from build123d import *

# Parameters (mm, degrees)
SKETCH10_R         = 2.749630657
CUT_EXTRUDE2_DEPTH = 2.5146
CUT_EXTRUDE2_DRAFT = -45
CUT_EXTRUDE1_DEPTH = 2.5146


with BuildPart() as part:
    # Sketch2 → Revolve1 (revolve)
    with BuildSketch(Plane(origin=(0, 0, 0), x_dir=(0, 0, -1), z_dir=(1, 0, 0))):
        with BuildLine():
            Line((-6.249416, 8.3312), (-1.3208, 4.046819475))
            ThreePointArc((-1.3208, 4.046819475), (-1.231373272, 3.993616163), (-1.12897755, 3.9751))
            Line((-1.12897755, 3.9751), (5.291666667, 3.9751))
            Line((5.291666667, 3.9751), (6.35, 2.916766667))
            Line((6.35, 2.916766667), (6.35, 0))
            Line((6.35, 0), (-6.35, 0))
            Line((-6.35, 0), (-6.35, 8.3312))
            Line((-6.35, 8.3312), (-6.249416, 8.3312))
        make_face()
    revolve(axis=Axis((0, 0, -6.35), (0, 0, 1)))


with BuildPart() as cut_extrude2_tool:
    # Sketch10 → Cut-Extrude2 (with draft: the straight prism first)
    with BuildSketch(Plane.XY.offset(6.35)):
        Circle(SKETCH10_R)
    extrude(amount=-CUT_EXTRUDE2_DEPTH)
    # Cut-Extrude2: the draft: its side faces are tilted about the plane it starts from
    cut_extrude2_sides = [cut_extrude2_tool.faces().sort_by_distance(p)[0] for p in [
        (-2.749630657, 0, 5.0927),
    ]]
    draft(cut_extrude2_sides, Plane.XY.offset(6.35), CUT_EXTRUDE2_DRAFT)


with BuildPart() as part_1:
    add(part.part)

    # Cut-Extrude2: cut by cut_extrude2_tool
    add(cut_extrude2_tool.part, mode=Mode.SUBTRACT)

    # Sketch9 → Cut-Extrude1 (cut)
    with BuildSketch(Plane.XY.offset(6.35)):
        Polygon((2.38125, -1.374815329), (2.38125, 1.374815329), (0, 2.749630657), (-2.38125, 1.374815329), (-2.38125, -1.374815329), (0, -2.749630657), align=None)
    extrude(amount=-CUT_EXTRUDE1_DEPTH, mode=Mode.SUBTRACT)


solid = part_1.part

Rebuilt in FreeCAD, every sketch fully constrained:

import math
import FreeCAD as App
import Part
import Sketcher

V = App.Vector
Q = App.Units.Quantity


def faces_at(feature, points):
    """Names of the faces that lie closest to the given points."""
    faces = feature.Shape.Faces
    near = lambda p: min(range(len(faces)), key=lambda i: faces[i].distToShape(Part.Vertex(*p))[0])
    return sorted({f"Face{near(p) + 1}" for p in points})

doc = App.newDocument("Part")
body = doc.addObject("PartDesign::Body", "Body")

# Sketch on YZ plane
sketch1 = body.newObject("Sketcher::SketchObject", "Sketch")
sketch1.AttachmentSupport = (doc.getObject("YZ_Plane"), [""])
sketch1.MapMode = "FlatFace"
sketch1.addGeometry([
    Part.LineSegment(V(4.05, 1.32, 0), V(8.33, 6.25, 0)),  # 0
    Part.LineSegment(V(8.33, 6.25, 0), V(8.33, 6.35, 0)),  # 1
    Part.LineSegment(V(8.33, 6.35, 0), V(0, 6.35, 0)),  # 2
    Part.LineSegment(V(0, 6.35, 0), V(0, -6.35, 0)),  # 3
    Part.LineSegment(V(0, -6.35, 0), V(2.92, -6.35, 0)),  # 4
    Part.LineSegment(V(2.92, -6.35, 0), V(3.98, -5.29, 0)),  # 5
    Part.LineSegment(V(3.98, -5.29, 0), V(3.98, 1.13, 0)),  # 6
    Part.ArcOfCircle(Part.Circle(V(4.27, 1.13, 0), V(0, 0, 1), 0.29), math.radians(139), math.radians(180)),  # 7
], False)
sketch1.addConstraint([
    Sketcher.Constraint("Coincident", 0, 2, 1, 1),
    Sketcher.Constraint("Coincident", 1, 2, 2, 1),
    Sketcher.Constraint("Coincident", 2, 2, 3, 1),
    Sketcher.Constraint("Coincident", 3, 2, 4, 1),
    Sketcher.Constraint("Coincident", 4, 2, 5, 1),
    Sketcher.Constraint("Coincident", 5, 2, 6, 1),
    Sketcher.Constraint("Tangent", 6, 2, 7, 2),
    Sketcher.Constraint("Tangent", 7, 1, 0, 1),
    Sketcher.Constraint("Vertical", 1),
    Sketcher.Constraint("Horizontal", 2),
    Sketcher.Constraint("Vertical", 3),
    Sketcher.Constraint("Horizontal", 4),
    Sketcher.Constraint("Vertical", 6),
    Sketcher.Constraint("Symmetric", 2, 2, 3, 2, -1, 1),
    Sketcher.Constraint("DistanceY", 3, 2, 3, 1, Q("0.5 in")),
    Sketcher.Constraint("Angle", 0, Q("49 deg")),
    Sketcher.Constraint("Angle", 5, Q("45 deg")),
    Sketcher.Constraint("DistanceX", 2, 2, 2, 1, Q("0.328 in")),
    Sketcher.Constraint("DistanceY", -1, 1, 7, 1, Q("0.052 in")),
    Sketcher.Constraint("DistanceX", -1, 1, 5, 2, Q("0.1565 in")),
    Sketcher.Constraint("Radius", 7, 0.292386),
    Sketcher.Constraint("Distance", 5, 1.496709),
])
revolution = body.newObject("PartDesign::Revolution", "Revolution")
revolution.Profile = sketch1
revolution.ReferenceAxis = (sketch1, ["V_Axis"])
revolution.Angle = 360
body2 = doc.addObject("PartDesign::Body", "Body001")

# Sketch on XY plane
sketch2 = body2.newObject("Sketcher::SketchObject", "Sketch001")
sketch2.AttachmentSupport = (doc.getObject("XY_Plane001"), [""])
sketch2.MapMode = "FlatFace"
sketch2.AttachmentOffset = App.Placement(V(0, 0, 0.25 * 25.4), App.Rotation())
sketch2.addGeometry(Part.Circle(V(0, 0, 0), V(0, 0, 1), 2.7), False)
sketch2.addConstraint([
    Sketcher.Constraint("Coincident", 0, 3, -1, 1),
    Sketcher.Constraint("Diameter", 0, 5.499261),
])
pad1 = body2.newObject("PartDesign::Pad", "Pad")
pad1.Profile = sketch2
pad1.Length = Q("0.099 in")
pad1.Reversed = True
doc.recompute()

datumplane = body2.newObject("PartDesign::Plane", "DatumPlane")
datumplane.AttachmentSupport = (doc.getObject("XY_Plane001"), [""])
datumplane.MapMode = "FlatFace"
datumplane.AttachmentOffset = App.Placement(V(0, 0, 0.25 * 25.4), App.Rotation())
draft = body2.newObject("PartDesign::Draft", "Draft")
draft.Base = (pad1, faces_at(pad1, [(-2.75, 0, 5.093)]))
draft.NeutralPlane = (datumplane, [""])
draft.Angle = 45
draft.Reversed = True
doc.recompute()

boolean = body.newObject("PartDesign::Boolean", "Boolean")
boolean.Type = "Cut"
boolean.addObjects([body2])

# Sketch on XY plane
sketch3 = body.newObject("Sketcher::SketchObject", "Sketch002")
sketch3.AttachmentSupport = (doc.getObject("XY_Plane"), [""])
sketch3.MapMode = "FlatFace"
sketch3.AttachmentOffset = App.Placement(V(0, 0, 0.25 * 25.4), App.Rotation())
sketch3.addGeometry([
    Part.LineSegment(V(2.4, -1.4, 0), V(2.4, 1.4, 0)),  # 0
    Part.LineSegment(V(2.4, 1.4, 0), V(0, 2.7, 0)),  # 1
    Part.LineSegment(V(0, 2.7, 0), V(-2.4, 1.4, 0)),  # 2
    Part.LineSegment(V(-2.4, 1.4, 0), V(-2.4, -1.4, 0)),  # 3
    Part.LineSegment(V(-2.4, -1.4, 0), V(0, -2.7, 0)),  # 4
    Part.LineSegment(V(0, -2.7, 0), V(2.4, -1.4, 0)),  # 5
], False)
sketch3.addConstraint([
    Sketcher.Constraint("Coincident", 0, 2, 1, 1),
    Sketcher.Constraint("Coincident", 1, 2, 2, 1),
    Sketcher.Constraint("Coincident", 2, 2, 3, 1),
    Sketcher.Constraint("Coincident", 3, 2, 4, 1),
    Sketcher.Constraint("Coincident", 4, 2, 5, 1),
    Sketcher.Constraint("Coincident", 5, 2, 0, 1),
    Sketcher.Constraint("Vertical", 0),
    Sketcher.Constraint("Vertical", 3),
    Sketcher.Constraint("Symmetric", 0, 2, 3, 2, -1, 1),
    Sketcher.Constraint("Symmetric", 1, 2, 4, 2, -1, 1),
    Sketcher.Constraint("PointOnObject", 1, 2, -2),
    Sketcher.Constraint("Parallel", 2, 5),
    Sketcher.Constraint("Horizontal", 0, 2, 2, 2),
    Sketcher.Constraint("Angle", 1, Q("150 deg")),
    Sketcher.Constraint("DistanceX", -1, 1, 0, 2, Q("0.09375 in")),
    Sketcher.Constraint("DistanceY", 0, 1, 0, 2, 2.749631),
])
pocket1 = body.newObject("PartDesign::Pocket", "Pocket")
pocket1.Profile = sketch3
pocket1.Length = Q("0.099 in")

doc.recompute()
